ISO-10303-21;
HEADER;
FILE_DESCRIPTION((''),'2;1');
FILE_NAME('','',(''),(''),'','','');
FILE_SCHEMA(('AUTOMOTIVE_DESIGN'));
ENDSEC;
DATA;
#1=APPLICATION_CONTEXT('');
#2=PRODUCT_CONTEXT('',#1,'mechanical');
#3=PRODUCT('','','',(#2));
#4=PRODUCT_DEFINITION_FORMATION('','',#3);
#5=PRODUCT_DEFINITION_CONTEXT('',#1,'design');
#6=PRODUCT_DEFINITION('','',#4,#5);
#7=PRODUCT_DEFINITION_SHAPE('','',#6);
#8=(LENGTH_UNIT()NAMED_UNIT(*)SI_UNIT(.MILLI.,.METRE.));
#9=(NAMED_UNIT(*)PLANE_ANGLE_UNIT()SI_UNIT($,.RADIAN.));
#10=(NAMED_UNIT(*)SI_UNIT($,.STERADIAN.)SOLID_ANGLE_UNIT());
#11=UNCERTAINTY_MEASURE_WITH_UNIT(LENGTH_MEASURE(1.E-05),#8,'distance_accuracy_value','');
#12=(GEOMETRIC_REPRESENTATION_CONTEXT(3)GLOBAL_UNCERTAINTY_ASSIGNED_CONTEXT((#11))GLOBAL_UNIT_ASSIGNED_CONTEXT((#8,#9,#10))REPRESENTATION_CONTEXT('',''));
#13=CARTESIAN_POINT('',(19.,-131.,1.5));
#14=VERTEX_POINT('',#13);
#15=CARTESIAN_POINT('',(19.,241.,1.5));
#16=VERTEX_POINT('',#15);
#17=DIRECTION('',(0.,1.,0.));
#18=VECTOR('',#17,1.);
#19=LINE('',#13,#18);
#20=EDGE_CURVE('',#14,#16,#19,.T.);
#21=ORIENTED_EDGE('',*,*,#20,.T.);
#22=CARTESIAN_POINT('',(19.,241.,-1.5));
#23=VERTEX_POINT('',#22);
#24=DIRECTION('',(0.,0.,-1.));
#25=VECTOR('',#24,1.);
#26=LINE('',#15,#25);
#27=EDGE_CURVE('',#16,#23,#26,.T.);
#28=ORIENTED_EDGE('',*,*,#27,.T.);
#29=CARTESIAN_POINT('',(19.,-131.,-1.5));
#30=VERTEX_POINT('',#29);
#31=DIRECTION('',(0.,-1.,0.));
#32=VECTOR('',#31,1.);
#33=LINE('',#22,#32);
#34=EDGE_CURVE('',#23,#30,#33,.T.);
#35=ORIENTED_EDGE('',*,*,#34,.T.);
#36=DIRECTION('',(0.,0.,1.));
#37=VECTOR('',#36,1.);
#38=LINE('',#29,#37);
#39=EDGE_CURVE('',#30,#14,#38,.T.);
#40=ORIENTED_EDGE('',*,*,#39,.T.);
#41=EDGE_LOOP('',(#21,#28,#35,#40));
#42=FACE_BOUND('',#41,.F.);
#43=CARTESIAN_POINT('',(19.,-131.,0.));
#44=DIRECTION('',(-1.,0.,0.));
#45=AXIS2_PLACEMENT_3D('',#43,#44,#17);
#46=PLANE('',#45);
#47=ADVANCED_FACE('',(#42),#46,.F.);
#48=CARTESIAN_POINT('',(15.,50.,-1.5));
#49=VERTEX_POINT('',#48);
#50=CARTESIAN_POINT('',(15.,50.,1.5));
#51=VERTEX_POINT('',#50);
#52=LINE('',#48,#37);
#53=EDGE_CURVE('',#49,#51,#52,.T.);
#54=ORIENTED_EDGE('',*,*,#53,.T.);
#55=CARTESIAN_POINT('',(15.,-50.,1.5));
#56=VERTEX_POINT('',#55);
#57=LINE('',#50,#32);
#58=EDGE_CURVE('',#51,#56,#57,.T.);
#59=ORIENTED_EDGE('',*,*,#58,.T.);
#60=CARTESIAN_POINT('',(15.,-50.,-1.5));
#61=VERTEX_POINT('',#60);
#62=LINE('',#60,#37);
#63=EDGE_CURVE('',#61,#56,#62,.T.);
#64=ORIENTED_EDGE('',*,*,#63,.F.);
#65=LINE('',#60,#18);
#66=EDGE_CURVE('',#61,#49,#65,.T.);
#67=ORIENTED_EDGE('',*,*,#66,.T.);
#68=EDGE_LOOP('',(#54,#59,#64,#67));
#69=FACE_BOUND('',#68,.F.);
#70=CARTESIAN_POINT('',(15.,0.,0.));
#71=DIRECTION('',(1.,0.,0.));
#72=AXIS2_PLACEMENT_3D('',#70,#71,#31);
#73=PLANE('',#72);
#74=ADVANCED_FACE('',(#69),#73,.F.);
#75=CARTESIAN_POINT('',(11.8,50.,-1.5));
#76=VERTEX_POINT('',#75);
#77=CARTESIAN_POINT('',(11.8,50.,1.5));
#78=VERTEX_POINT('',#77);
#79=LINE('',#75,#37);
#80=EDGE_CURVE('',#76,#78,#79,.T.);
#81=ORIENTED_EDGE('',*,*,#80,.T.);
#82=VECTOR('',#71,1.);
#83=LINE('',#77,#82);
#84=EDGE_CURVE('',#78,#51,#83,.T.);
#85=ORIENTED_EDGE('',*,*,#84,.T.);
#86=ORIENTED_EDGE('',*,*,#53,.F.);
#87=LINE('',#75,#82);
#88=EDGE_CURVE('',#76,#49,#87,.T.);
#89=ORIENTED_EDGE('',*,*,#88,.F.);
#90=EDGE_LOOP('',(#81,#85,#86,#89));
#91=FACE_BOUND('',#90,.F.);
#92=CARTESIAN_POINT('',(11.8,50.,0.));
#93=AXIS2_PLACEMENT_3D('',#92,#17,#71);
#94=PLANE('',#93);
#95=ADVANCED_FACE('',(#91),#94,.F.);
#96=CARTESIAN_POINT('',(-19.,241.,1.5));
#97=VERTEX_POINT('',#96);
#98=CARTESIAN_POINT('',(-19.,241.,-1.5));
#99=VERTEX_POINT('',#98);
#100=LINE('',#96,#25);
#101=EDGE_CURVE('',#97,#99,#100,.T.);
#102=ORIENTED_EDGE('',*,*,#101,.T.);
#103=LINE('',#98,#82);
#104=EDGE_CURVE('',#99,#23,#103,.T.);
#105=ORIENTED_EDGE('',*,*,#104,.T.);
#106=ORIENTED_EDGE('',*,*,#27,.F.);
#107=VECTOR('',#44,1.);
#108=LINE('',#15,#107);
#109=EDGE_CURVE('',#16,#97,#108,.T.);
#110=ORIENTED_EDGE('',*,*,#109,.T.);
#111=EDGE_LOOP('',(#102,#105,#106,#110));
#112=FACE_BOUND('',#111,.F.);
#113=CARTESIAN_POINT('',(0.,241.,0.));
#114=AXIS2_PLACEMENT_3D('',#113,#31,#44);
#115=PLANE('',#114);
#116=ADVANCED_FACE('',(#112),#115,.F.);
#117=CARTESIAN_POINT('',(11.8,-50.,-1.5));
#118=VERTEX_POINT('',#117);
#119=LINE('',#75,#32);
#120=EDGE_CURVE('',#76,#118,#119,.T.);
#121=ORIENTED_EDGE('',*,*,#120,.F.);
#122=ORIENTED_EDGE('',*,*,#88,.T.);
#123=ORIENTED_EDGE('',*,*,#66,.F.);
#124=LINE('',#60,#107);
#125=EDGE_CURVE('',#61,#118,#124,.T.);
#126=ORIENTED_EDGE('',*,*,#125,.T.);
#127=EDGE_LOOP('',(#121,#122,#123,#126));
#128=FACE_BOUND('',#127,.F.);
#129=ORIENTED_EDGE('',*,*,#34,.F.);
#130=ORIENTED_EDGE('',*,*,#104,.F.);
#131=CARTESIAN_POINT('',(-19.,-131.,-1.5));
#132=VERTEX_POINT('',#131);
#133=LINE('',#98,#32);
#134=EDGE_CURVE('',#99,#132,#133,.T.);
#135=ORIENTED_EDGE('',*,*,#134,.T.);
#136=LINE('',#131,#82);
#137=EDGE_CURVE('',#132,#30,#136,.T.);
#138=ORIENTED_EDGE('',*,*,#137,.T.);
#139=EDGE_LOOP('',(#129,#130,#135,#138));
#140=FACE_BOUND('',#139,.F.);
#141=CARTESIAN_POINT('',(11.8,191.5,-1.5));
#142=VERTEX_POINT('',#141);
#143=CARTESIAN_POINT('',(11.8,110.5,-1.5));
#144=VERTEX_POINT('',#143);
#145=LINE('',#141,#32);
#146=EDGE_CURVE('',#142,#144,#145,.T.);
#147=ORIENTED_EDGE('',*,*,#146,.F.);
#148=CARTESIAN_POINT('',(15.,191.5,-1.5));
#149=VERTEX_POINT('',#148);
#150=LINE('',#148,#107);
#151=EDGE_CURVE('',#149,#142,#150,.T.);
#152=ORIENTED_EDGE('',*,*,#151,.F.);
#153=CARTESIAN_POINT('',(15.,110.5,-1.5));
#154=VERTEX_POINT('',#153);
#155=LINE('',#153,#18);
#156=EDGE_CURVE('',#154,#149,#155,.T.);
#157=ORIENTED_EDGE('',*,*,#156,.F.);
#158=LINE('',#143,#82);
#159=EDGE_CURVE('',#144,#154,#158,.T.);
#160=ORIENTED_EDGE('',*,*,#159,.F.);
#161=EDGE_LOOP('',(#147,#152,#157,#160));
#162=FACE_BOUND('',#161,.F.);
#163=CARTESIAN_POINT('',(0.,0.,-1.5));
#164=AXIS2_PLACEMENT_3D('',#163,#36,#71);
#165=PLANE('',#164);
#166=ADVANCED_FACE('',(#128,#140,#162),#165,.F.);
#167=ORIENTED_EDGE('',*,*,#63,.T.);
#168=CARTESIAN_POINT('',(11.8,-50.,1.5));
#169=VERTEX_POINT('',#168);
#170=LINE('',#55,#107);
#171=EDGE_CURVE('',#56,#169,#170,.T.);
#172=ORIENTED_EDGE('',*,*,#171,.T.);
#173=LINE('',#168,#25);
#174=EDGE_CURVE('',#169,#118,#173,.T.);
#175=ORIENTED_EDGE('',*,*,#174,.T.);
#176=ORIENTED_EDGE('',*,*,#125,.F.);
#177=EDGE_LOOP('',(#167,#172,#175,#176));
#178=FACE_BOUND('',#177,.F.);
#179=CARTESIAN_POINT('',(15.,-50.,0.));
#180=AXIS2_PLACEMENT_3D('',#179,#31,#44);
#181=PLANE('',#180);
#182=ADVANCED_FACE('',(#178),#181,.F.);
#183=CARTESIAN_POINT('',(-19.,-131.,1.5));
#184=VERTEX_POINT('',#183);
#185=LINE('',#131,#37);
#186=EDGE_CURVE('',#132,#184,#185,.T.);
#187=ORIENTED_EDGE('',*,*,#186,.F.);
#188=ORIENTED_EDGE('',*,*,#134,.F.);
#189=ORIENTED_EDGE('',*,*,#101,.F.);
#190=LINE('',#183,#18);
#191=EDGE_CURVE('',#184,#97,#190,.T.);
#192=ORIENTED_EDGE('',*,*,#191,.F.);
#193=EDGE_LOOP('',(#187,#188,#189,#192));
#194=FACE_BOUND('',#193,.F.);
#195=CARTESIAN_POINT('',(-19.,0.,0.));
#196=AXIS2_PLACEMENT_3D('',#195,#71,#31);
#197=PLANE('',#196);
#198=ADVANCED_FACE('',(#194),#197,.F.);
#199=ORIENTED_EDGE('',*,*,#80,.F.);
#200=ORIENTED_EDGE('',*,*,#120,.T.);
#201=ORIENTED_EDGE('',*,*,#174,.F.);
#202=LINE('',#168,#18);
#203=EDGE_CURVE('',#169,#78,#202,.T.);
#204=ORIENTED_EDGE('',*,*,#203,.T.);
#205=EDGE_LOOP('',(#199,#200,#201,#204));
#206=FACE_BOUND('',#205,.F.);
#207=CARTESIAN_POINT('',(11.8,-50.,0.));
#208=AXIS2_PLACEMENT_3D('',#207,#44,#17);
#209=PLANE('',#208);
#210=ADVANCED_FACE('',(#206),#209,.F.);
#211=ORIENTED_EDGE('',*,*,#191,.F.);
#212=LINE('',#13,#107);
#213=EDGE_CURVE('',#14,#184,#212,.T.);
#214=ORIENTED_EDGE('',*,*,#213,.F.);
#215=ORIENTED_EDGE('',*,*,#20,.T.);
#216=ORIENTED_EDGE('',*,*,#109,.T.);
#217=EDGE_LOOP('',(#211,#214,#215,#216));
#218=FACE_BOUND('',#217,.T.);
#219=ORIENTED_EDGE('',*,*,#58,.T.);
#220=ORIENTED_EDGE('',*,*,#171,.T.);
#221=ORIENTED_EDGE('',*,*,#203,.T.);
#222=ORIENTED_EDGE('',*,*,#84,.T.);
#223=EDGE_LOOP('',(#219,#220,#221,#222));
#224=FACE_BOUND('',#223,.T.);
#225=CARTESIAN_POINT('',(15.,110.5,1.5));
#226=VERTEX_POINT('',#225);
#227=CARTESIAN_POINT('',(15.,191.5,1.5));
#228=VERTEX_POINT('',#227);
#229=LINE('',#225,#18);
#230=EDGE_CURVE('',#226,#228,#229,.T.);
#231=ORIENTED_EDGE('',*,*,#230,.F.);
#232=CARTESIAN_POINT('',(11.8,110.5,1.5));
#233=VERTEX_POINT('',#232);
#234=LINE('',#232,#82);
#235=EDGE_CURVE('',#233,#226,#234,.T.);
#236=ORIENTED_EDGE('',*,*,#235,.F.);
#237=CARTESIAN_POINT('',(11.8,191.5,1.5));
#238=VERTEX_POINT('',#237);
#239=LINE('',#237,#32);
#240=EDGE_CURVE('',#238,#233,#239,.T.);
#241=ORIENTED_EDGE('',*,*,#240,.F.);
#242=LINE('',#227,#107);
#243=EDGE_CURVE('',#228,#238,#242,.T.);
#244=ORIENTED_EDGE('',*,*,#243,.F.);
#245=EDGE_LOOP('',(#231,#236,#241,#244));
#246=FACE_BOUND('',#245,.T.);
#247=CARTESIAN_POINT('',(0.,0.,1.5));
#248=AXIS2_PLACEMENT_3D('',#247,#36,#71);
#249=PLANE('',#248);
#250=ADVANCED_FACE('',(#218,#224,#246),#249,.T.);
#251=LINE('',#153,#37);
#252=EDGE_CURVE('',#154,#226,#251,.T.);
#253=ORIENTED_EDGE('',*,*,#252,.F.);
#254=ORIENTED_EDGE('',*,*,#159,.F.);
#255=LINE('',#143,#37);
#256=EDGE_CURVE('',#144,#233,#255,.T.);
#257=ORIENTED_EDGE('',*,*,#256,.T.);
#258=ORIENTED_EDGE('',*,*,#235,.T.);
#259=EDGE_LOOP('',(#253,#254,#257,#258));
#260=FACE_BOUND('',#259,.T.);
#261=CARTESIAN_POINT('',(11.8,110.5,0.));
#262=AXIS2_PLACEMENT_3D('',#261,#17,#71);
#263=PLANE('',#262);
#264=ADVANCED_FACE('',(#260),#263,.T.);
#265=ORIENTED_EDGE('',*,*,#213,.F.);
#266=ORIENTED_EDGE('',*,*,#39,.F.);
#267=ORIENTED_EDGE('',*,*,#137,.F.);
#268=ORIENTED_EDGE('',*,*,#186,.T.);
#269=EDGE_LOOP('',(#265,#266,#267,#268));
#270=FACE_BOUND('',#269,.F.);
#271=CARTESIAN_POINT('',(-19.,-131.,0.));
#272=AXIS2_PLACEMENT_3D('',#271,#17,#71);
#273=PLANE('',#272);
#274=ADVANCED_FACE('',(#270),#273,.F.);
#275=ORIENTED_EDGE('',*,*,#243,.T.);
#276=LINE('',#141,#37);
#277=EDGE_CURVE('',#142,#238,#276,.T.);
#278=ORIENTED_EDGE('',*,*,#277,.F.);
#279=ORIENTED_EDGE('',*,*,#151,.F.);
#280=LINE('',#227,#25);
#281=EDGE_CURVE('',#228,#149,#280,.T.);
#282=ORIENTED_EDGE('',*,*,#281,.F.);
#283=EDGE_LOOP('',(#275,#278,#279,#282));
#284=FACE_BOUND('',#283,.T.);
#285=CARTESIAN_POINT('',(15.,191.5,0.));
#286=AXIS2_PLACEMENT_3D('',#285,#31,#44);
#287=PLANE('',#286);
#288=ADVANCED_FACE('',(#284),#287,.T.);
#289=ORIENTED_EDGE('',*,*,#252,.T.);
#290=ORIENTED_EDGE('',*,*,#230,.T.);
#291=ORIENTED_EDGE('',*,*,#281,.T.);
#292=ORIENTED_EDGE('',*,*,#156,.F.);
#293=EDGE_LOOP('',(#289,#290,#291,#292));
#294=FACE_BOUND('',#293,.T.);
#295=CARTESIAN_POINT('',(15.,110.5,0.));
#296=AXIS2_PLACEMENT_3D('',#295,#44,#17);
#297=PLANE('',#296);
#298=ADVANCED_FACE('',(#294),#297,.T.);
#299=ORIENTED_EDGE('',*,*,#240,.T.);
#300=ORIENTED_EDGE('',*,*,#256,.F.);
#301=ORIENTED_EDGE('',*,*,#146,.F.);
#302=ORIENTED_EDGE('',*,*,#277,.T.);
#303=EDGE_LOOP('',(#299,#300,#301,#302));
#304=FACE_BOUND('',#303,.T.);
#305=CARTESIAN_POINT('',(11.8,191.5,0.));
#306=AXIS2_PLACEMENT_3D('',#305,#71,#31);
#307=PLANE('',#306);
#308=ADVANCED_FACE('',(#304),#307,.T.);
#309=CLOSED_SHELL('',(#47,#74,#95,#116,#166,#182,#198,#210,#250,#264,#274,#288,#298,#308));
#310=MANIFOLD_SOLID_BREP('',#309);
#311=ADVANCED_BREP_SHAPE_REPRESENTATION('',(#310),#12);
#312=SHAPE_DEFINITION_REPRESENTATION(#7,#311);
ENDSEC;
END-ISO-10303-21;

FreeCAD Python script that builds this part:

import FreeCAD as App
import Part
import Sketcher

V = App.Vector
Q = App.Units.Quantity

doc = App.newDocument("Part")
body = doc.addObject("PartDesign::Body", "Body")

sketch1 = body.newObject("Sketcher::SketchObject", "Sketch")
sketch1.AttachmentSupport = (doc.getObject("XY_Plane"), [""])
sketch1.MapMode = "FlatFace"
sketch1.addGeometry([
    Part.LineSegment(V(-19, -131, 0), V(19, -131, 0)),
    Part.LineSegment(V(19, -131, 0), V(19, 241, 0)),
    Part.LineSegment(V(19, 241, 0), V(-19, 241, 0)),
    Part.LineSegment(V(-19, 241, 0), V(-19, -131, 0)),
    Part.LineSegment(V(11.8, -50, 0), V(11.8, 50, 0)),
    Part.LineSegment(V(11.8, 50, 0), V(15, 50, 0)),
    Part.LineSegment(V(15, 50, 0), V(15, -50, 0)),
    Part.LineSegment(V(15, -50, 0), V(11.8, -50, 0)),
    Part.LineSegment(V(15, 191.5, 0), V(15, 110.5, 0)),
    Part.LineSegment(V(15, 110.5, 0), V(11.8, 110.5, 0)),
    Part.LineSegment(V(11.8, 110.5, 0), V(11.8, 191.5, 0)),
    Part.LineSegment(V(11.8, 191.5, 0), V(15, 191.5, 0)),
], False)
sketch1.addConstraint([
    Sketcher.Constraint("Coincident", 0, 2, 1, 1),
    Sketcher.Constraint("Coincident", 1, 2, 2, 1),
    Sketcher.Constraint("Coincident", 2, 2, 3, 1),
    Sketcher.Constraint("Coincident", 3, 2, 0, 1),
    Sketcher.Constraint("Coincident", 4, 2, 5, 1),
    Sketcher.Constraint("Coincident", 5, 2, 6, 1),
    Sketcher.Constraint("Coincident", 6, 2, 7, 1),
    Sketcher.Constraint("Coincident", 7, 2, 4, 1),
    Sketcher.Constraint("Coincident", 8, 2, 9, 1),
    Sketcher.Constraint("Coincident", 9, 2, 10, 1),
    Sketcher.Constraint("Coincident", 10, 2, 11, 1),
    Sketcher.Constraint("Coincident", 11, 2, 8, 1),
    Sketcher.Constraint("Horizontal", 0),
    Sketcher.Constraint("Vertical", 1),
    Sketcher.Constraint("Horizontal", 2),
    Sketcher.Constraint("Vertical", 3),
    Sketcher.Constraint("Vertical", 4),
    Sketcher.Constraint("Horizontal", 5),
    Sketcher.Constraint("Vertical", 6),
    Sketcher.Constraint("Horizontal", 7),
    Sketcher.Constraint("Vertical", 8),
    Sketcher.Constraint("Horizontal", 9),
    Sketcher.Constraint("Vertical", 10),
    Sketcher.Constraint("Horizontal", 11),
    Sketcher.Constraint("Vertical", 6, 2, 8, 2),
    Sketcher.Constraint("Vertical", 7, 2, 9, 2),
    Sketcher.Constraint("DistanceX", 0, 1, 0, 2, Q("38 mm")),
    Sketcher.Constraint("DistanceY", 4, 1, 4, 2, Q("100 mm")),
    Sketcher.Constraint("DistanceY", 8, 2, 8, 1, Q("81 mm")),
    Sketcher.Constraint("DistanceX", 5, 1, 5, 2, Q("3.2 mm")),
    Sketcher.Constraint("DistanceX", 5, 2, 0, 2, Q("4 mm")),
    Sketcher.Constraint("DistanceY", 0, 2, 6, 2, Q("81 mm")),
    Sketcher.Constraint("DistanceY", 10, 2, 1, 2, Q("49.5 mm")),
    Sketcher.Constraint("DistanceY", 1, 1, 1, 2, Q("372 mm")),
    Sketcher.Constraint("DistanceX", -1, 1, 0, 2, Q("19 mm")),
    Sketcher.Constraint("DistanceY", 0, 2, -1, 1, Q("131 mm")),
])
pad1 = body.newObject("PartDesign::Pad", "Pad")
pad1.Profile = sketch1
pad1.Length = 3
pad1.Midplane = True

doc.recompute()
